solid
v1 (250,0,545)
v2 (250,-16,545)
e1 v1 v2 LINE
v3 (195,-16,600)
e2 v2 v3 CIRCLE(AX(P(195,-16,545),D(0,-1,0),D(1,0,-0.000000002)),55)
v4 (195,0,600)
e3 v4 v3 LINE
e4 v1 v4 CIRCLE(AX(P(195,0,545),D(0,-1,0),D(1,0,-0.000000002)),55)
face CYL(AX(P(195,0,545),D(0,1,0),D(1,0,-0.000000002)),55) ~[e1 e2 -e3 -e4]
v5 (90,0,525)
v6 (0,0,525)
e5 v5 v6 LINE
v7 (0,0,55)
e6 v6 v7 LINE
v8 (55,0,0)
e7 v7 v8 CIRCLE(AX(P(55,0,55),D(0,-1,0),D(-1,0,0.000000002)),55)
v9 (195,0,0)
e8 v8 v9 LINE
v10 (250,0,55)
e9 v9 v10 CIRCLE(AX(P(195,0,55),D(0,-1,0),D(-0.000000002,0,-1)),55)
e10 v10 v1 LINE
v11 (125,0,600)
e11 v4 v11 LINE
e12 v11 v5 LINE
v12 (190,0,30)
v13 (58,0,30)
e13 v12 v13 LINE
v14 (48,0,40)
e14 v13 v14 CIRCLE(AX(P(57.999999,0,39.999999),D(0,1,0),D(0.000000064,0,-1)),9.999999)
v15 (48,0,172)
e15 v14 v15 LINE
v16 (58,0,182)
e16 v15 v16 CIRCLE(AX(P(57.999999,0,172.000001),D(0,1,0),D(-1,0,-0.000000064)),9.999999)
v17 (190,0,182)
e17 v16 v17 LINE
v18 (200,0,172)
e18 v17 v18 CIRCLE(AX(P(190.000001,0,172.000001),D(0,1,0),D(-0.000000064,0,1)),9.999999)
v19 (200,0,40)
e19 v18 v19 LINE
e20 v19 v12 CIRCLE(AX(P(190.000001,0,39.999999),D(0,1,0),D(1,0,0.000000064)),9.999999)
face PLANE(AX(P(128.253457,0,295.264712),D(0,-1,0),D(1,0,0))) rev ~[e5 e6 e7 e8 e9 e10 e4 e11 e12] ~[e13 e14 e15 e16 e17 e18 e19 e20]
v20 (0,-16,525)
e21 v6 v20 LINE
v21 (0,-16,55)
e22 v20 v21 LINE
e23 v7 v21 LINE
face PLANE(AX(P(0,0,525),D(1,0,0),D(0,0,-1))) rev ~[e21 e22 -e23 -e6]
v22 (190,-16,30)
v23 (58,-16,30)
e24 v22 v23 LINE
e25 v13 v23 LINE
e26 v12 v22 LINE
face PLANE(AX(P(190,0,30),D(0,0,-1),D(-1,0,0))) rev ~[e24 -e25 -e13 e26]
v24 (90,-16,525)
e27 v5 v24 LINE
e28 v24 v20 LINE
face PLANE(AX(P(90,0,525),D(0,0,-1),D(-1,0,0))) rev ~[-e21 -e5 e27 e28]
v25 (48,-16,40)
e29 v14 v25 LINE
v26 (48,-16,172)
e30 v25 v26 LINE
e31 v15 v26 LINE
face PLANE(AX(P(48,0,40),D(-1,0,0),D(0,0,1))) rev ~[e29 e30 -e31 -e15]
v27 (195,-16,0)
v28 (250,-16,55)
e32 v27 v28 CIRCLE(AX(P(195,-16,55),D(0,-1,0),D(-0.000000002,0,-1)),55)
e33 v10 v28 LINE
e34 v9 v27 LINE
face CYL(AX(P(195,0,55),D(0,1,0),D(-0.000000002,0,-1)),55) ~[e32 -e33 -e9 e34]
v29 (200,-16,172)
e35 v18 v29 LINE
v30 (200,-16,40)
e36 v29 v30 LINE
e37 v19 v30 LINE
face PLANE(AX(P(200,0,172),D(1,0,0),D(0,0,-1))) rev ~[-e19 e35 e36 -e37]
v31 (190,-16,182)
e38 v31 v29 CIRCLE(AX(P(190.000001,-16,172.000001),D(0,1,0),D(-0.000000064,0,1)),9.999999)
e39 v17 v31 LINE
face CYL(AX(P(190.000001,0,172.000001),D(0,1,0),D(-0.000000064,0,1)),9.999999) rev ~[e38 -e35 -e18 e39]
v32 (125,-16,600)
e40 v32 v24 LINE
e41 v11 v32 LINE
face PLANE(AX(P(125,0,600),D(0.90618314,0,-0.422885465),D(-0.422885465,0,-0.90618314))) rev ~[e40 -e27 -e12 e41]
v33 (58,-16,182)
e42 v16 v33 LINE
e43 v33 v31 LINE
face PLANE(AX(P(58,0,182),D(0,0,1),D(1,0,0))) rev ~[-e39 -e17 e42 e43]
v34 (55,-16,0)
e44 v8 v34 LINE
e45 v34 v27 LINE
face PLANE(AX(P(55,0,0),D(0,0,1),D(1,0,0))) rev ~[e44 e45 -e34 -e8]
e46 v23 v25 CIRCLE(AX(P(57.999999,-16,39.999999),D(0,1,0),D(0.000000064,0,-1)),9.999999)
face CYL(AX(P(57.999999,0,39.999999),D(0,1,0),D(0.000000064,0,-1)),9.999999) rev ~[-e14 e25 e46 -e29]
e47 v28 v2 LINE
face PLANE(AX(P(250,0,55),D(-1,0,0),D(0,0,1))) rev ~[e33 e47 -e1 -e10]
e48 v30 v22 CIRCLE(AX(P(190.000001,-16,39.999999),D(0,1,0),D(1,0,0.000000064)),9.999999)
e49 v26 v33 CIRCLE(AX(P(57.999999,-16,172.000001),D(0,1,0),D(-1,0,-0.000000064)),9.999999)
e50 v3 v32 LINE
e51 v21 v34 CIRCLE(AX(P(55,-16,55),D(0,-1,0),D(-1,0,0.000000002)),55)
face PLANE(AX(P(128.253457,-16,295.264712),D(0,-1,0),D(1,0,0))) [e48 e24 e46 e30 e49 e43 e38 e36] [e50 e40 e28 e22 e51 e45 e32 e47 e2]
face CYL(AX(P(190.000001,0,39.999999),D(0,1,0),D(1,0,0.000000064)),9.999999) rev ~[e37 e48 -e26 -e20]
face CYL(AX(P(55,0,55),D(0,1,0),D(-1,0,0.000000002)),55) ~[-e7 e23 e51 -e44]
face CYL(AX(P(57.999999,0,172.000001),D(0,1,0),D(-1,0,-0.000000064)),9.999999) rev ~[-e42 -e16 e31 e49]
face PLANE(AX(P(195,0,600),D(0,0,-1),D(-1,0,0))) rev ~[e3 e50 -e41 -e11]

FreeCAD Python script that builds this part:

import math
import FreeCAD as App
import Part
import Sketcher

V = App.Vector
Q = App.Units.Quantity

doc = App.newDocument("Part")
params = doc.addObject("Spreadsheet::Sheet", "Params")
for row, (alias, value) in enumerate([
    ("sketch1_radius", "55 mm"),
    ("sketch1_radius2", "9.999999 mm"),
    ("sketch1_width", "140 mm"),
    ("sketch1_width2", "70 mm"),
    ("sketch1_width3", "90 mm"),
    ("pad1_length", "16 mm"),
], start=1):
    params.set(f"A{row}", alias)
    params.set(f"B{row}", "=" + value)
    params.setAlias(f"B{row}", alias)

body = doc.addObject("PartDesign::Body", "Body")

# Sketch on XZ plane
sketch1 = body.newObject("Sketcher::SketchObject", "Sketch")
sketch1.AttachmentSupport = (doc.getObject("XZ_Plane"), [""])
sketch1.MapMode = "FlatFace"
sketch1.addGeometry([
    Part.ArcOfCircle(Part.Circle(V(55, 55, 0), V(0, 0, 1), 55), math.radians(180), math.radians(270)),  # 0
    Part.LineSegment(V(55, 0, 0), V(195, 0, 0)),  # 1
    Part.ArcOfCircle(Part.Circle(V(195, 55, 0), V(0, 0, 1), 55), math.radians(-90), math.radians(0)),  # 2
    Part.LineSegment(V(250, 55, 0), V(250, 545, 0)),  # 3
    Part.ArcOfCircle(Part.Circle(V(195, 545, 0), V(0, 0, 1), 55), math.radians(0), math.radians(90)),  # 4
    Part.LineSegment(V(195, 600, 0), V(125, 600, 0)),  # 5
    Part.LineSegment(V(125, 600, 0), V(90, 525, 0)),  # 6
    Part.LineSegment(V(90, 525, 0), V(0, 525, 0)),  # 7
    Part.LineSegment(V(0, 525, 0), V(0, 55, 0)),  # 8
    Part.LineSegment(V(48, 40, 0), V(48, 172, 0)),  # 9
    Part.ArcOfCircle(Part.Circle(V(58, 172, 0), V(0, 0, 1), 10), math.radians(90), math.radians(180)),  # 10
    Part.LineSegment(V(58, 182, 0), V(190, 182, 0)),  # 11
    Part.ArcOfCircle(Part.Circle(V(190, 172, 0), V(0, 0, 1), 10), math.radians(0), math.radians(90)),  # 12
    Part.LineSegment(V(200, 172, 0), V(200, 40, 0)),  # 13
    Part.ArcOfCircle(Part.Circle(V(190, 40, 0), V(0, 0, 1), 10), math.radians(-90), math.radians(0)),  # 14
    Part.LineSegment(V(190, 30, 0), V(58, 30, 0)),  # 15
    Part.ArcOfCircle(Part.Circle(V(58, 40, 0), V(0, 0, 1), 10), math.radians(180), math.radians(270)),  # 16
], False)
sketch1.addConstraint([
    Sketcher.Constraint("Tangent", 0, 2, 1, 1),
    Sketcher.Constraint("Tangent", 1, 2, 2, 1),
    Sketcher.Constraint("Tangent", 2, 2, 3, 1),
    Sketcher.Constraint("Tangent", 3, 2, 4, 1),
    Sketcher.Constraint("Tangent", 4, 2, 5, 1),
    Sketcher.Constraint("Coincident", 5, 2, 6, 1),
    Sketcher.Constraint("Coincident", 6, 2, 7, 1),
    Sketcher.Constraint("Coincident", 7, 2, 8, 1),
    Sketcher.Constraint("Tangent", 8, 2, 0, 1),
    Sketcher.Constraint("Tangent", 9, 2, 10, 2),
    Sketcher.Constraint("Tangent", 10, 1, 11, 1),
    Sketcher.Constraint("Tangent", 11, 2, 12, 2),
    Sketcher.Constraint("Tangent", 12, 1, 13, 1),
    Sketcher.Constraint("Tangent", 13, 2, 14, 2),
    Sketcher.Constraint("Tangent", 14, 1, 15, 1),
    Sketcher.Constraint("Tangent", 15, 2, 16, 2),
    Sketcher.Constraint("Tangent", 16, 1, 9, 1),
    Sketcher.Constraint("Horizontal", 1),
    Sketcher.Constraint("Vertical", 3),
    Sketcher.Constraint("Horizontal", 5),
    Sketcher.Constraint("Horizontal", 7),
    Sketcher.Constraint("Vertical", 8),
    Sketcher.Constraint("Vertical", 9),
    Sketcher.Constraint("Horizontal", 11),
    Sketcher.Constraint("Vertical", 13),
    Sketcher.Constraint("Horizontal", 15),
    Sketcher.Constraint("Equal", 0, 2),
    Sketcher.Constraint("Equal", 2, 4),
    Sketcher.Constraint("Equal", 10, 12),
    Sketcher.Constraint("Equal", 12, 14),
    Sketcher.Constraint("Equal", 14, 16),
    Sketcher.Constraint("PointOnObject", 0, 2, -1),
    Sketcher.Constraint("PointOnObject", 7, 2, -2),
    Sketcher.Constraint("Equal", 15, 9),
    Sketcher.Constraint("Radius", 0, Q("55 mm")),
    Sketcher.Constraint("Radius", 10, Q("9.999999 mm")),
    Sketcher.Constraint("DistanceX", 1, 1, 1, 2, Q("140 mm")),
    Sketcher.Constraint("DistanceX", 5, 2, 5, 1, Q("70 mm")),
    Sketcher.Constraint("DistanceX", 7, 2, 7, 1, Q("90 mm")),
    Sketcher.Constraint("DistanceX", 11, 1, 11, 2, Q("132 mm")),
    Sketcher.Constraint("DistanceY", 3, 1, 3, 2, Q("490 mm")),
    Sketcher.Constraint("DistanceY", 8, 2, 8, 1, Q("470 mm")),
    Sketcher.Constraint("DistanceX", -1, 1, 10, 3, Q("57.999999 mm")),
    Sketcher.Constraint("DistanceY", -1, 1, 10, 3, Q("172.000001 mm")),
])
sketch1.setExpression("Constraints[34]", "Params.sketch1_radius")
sketch1.setExpression("Constraints[35]", "Params.sketch1_radius2")
sketch1.setExpression("Constraints[36]", "Params.sketch1_width")
sketch1.setExpression("Constraints[37]", "Params.sketch1_width2")
sketch1.setExpression("Constraints[38]", "Params.sketch1_width3")
pad1 = body.newObject("PartDesign::Pad", "Pad")
pad1.Profile = sketch1
pad1.setExpression("Length", "Params.pad1_length")

doc.recompute()
